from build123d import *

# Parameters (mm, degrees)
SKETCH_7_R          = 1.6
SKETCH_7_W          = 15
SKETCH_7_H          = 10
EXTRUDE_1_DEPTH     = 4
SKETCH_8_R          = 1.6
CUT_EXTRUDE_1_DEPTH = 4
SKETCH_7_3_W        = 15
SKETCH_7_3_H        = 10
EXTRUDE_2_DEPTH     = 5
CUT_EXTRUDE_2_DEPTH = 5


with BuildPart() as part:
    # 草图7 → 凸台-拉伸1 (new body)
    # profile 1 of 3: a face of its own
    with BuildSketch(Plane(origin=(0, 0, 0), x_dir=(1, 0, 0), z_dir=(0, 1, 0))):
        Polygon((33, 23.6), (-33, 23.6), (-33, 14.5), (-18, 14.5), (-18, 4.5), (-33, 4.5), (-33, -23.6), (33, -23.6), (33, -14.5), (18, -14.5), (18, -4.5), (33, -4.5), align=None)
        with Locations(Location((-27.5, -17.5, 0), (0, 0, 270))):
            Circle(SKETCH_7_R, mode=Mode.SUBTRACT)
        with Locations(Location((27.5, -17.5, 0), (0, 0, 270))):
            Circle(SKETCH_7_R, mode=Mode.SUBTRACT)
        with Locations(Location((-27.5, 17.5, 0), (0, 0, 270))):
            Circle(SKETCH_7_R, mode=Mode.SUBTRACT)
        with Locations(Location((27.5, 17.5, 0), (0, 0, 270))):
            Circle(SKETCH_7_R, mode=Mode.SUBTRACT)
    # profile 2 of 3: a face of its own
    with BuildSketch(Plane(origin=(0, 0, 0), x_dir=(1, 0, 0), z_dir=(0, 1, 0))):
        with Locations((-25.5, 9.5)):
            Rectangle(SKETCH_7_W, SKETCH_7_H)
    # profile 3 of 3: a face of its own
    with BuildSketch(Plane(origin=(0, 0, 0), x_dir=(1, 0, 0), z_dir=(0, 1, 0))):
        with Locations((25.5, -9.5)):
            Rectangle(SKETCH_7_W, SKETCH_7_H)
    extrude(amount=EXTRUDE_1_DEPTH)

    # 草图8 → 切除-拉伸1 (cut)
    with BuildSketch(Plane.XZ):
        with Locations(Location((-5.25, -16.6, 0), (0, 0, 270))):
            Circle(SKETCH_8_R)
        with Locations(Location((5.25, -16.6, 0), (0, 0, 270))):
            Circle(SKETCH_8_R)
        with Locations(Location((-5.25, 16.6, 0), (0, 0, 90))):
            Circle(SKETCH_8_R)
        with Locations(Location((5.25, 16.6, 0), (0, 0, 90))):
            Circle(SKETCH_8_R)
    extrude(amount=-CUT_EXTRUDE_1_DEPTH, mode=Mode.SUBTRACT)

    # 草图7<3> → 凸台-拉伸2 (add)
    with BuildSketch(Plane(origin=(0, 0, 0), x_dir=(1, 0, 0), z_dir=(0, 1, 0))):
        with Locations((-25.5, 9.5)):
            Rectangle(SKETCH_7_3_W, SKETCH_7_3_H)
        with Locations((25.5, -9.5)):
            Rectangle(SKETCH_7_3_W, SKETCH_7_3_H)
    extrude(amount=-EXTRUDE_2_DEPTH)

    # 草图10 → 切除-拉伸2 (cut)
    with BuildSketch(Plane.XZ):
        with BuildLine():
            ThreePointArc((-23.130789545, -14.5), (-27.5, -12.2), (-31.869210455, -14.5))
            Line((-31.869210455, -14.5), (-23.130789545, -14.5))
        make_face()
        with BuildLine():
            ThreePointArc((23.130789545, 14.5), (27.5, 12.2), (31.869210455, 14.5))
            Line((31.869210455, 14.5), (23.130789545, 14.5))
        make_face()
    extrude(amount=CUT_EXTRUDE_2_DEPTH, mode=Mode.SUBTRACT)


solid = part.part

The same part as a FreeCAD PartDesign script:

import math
import FreeCAD as App
import Part
import Sketcher


def add_polygon(sketch, points):
    """Adds a closed chain of lines whose ends are joined by coincident constraints."""
    first, n = sketch.GeometryCount, len(points)
    for a, b in zip(points, points[1:] + points[:1]):
        sketch.addGeometry(Part.LineSegment(App.Vector(*a, 0), App.Vector(*b, 0)), False)
    for i in range(n):
        sketch.addConstraint(Sketcher.Constraint("Coincident", first + i, 2, first + (i + 1) % n, 1))

doc = App.newDocument("Part")
body = doc.addObject("PartDesign::Body", "Body")

# Sketch on XZ plane
sketch1 = body.newObject("Sketcher::SketchObject", "Sketch")
sketch1.AttachmentSupport = (doc.getObject("XZ_Plane"), [""])
sketch1.MapMode = "FlatFace"
add_polygon(sketch1, [(33, -23.6), (-33, -23.6), (-33, 23.6), (33, 23.6)])  # lines 0-3
sketch1.addGeometry(Part.Circle(App.Vector(-27.5, 17.5, 0), App.Vector(0, 0, 1), 1.6), False)  # 4
sketch1.addGeometry(Part.Circle(App.Vector(27.5, 17.5, 0), App.Vector(0, 0, 1), 1.6), False)  # 5
sketch1.addGeometry(Part.Circle(App.Vector(-27.5, -17.5, 0), App.Vector(0, 0, 1), 1.6), False)  # 6
sketch1.addGeometry(Part.Circle(App.Vector(27.5, -17.5, 0), App.Vector(0, 0, 1), 1.6), False)  # 7
sketch1.addConstraint([
    Sketcher.Constraint("Horizontal", 0),
    Sketcher.Constraint("Vertical", 1),
    Sketcher.Constraint("Horizontal", 2),
    Sketcher.Constraint("Vertical", 3),
    Sketcher.Constraint("Equal", 4, 5),
    Sketcher.Constraint("Equal", 5, 6),
    Sketcher.Constraint("Equal", 6, 7),
    Sketcher.Constraint("Symmetric", 5, 3, 6, 3, -1, 1),
    Sketcher.Constraint("Symmetric", 4, 3, 7, 3, -1, 1),
    Sketcher.Constraint("Symmetric", 0, 2, 2, 2, -1, 1),
    Sketcher.Constraint("Symmetric", 4, 3, 5, 3, -2),
    Sketcher.Constraint("Diameter", 4, 3.2),
    Sketcher.Constraint("DistanceX", 0, 2, 0, 1, 66.0),
    Sketcher.Constraint("DistanceY", 1, 1, 1, 2, 47.2),
    Sketcher.Constraint("DistanceX", 4, 3, 5, 3, 55.0),
    Sketcher.Constraint("DistanceY", 6, 3, 4, 3, 35.0),
])
pad1 = body.newObject("PartDesign::Pad", "Pad")
pad1.Profile = sketch1
pad1.Length = 4
pad1.Reversed = True

# Sketch on XZ plane
sketch2 = body.newObject("Sketcher::SketchObject", "Sketch001")
sketch2.AttachmentSupport = (doc.getObject("XZ_Plane"), [""])
sketch2.MapMode = "FlatFace"
sketch2.addGeometry([
    Part.Circle(App.Vector(-5.2, -16.6, 0), App.Vector(0, 0, 1), 1.6),
    Part.Circle(App.Vector(5.2, -16.6, 0), App.Vector(0, 0, 1), 1.6),
    Part.Circle(App.Vector(-5.2, 16.6, 0), App.Vector(0, 0, 1), 1.6),
    Part.Circle(App.Vector(5.2, 16.6, 0), App.Vector(0, 0, 1), 1.6),
], False)
sketch2.addConstraint([
    Sketcher.Constraint("Equal", 0, 1),
    Sketcher.Constraint("Equal", 1, 2),
    Sketcher.Constraint("Equal", 2, 3),
    Sketcher.Constraint("Symmetric", 1, 3, 2, 3, -1, 1),
    Sketcher.Constraint("Symmetric", 0, 3, 3, 3, -1, 1),
    Sketcher.Constraint("Symmetric", 0, 3, 1, 3, -2),
    Sketcher.Constraint("Diameter", 0, 3.2),
    Sketcher.Constraint("DistanceY", 0, 3, -1, 1, 16.6),
    Sketcher.Constraint("DistanceX", 0, 3, 1, 3, 10.5),
])
pocket1 = body.newObject("PartDesign::Pocket", "Pocket")
pocket1.Profile = sketch2
pocket1.Length = 4

# Sketch on XZ plane
sketch3 = body.newObject("Sketcher::SketchObject", "Sketch002")
sketch3.AttachmentSupport = (doc.getObject("XZ_Plane"), [""])
sketch3.MapMode = "FlatFace"
add_polygon(sketch3, [(-33, -14), (-33, -4), (-18, -4), (-18, -14)])  # lines 0-3
add_polygon(sketch3, [(18, 4), (18, 14), (33, 14), (33, 4)])  # lines 4-7
sketch3.addConstraint([
    Sketcher.Constraint("Vertical", 0),
    Sketcher.Constraint("Horizontal", 1),
    Sketcher.Constraint("Vertical", 2),
    Sketcher.Constraint("Horizontal", 3),
    Sketcher.Constraint("Vertical", 4),
    Sketcher.Constraint("Horizontal", 5),
    Sketcher.Constraint("Vertical", 6),
    Sketcher.Constraint("Horizontal", 7),
    Sketcher.Constraint("Symmetric", 2, 2, 4, 2, -1, 1),
    Sketcher.Constraint("Symmetric", 0, 2, 6, 2, -1, 1),
    Sketcher.Constraint("DistanceX", 1, 1, 1, 2, 15.0),
    Sketcher.Constraint("DistanceY", 0, 1, 0, 2, 10.0),
    Sketcher.Constraint("DistanceX", 0, 2, -1, 1, 33.0),
    Sketcher.Constraint("DistanceY", 1, 2, 4, 2, 19.0),
])
pad2 = body.newObject("PartDesign::Pad", "Pad001")
pad2.Profile = sketch3
pad2.Length = 5

# Sketch on XZ plane
sketch4 = body.newObject("Sketcher::SketchObject", "Sketch003")
sketch4.AttachmentSupport = (doc.getObject("XZ_Plane"), [""])
sketch4.MapMode = "FlatFace"
sketch4.addGeometry([
    Part.ArcOfCircle(Part.Circle(App.Vector(-28, -18, 0), App.Vector(0, 0, 1), 5), math.radians(34), math.radians(146)),
    Part.LineSegment(App.Vector(-32, -14, 0), App.Vector(-23, -14, 0)),
    Part.ArcOfCircle(Part.Circle(App.Vector(28, 18, 0), App.Vector(0, 0, 1), 5), math.radians(-146), math.radians(-34)),
    Part.LineSegment(App.Vector(32, 14, 0), App.Vector(23, 14, 0)),
], False)
sketch4.addConstraint([
    Sketcher.Constraint("Coincident", 0, 1, 1, 2),
    Sketcher.Constraint("Coincident", 1, 1, 0, 2),
    Sketcher.Constraint("Coincident", 2, 1, 3, 2),
    Sketcher.Constraint("Coincident", 3, 1, 2, 2),
    Sketcher.Constraint("Horizontal", 1),
    Sketcher.Constraint("Horizontal", 3),
    Sketcher.Constraint("Equal", 0, 2),
    Sketcher.Constraint("Symmetric", 0, 3, 2, 3, -1, 1),
    Sketcher.Constraint("Equal", 1, 3),
    Sketcher.Constraint("Radius", 0, 5.3),
    Sketcher.Constraint("DistanceX", 0, 3, 2, 3, 55.0),
    Sketcher.Constraint("DistanceY", 0, 3, 2, 3, 35.0),
    Sketcher.Constraint("DistanceY", 0, 3, 0, 1, 3.0),
])
pocket2 = body.newObject("PartDesign::Pocket", "Pocket001")
pocket2.Profile = sketch4
pocket2.Length = 5
pocket2.Reversed = True

doc.recompute()
